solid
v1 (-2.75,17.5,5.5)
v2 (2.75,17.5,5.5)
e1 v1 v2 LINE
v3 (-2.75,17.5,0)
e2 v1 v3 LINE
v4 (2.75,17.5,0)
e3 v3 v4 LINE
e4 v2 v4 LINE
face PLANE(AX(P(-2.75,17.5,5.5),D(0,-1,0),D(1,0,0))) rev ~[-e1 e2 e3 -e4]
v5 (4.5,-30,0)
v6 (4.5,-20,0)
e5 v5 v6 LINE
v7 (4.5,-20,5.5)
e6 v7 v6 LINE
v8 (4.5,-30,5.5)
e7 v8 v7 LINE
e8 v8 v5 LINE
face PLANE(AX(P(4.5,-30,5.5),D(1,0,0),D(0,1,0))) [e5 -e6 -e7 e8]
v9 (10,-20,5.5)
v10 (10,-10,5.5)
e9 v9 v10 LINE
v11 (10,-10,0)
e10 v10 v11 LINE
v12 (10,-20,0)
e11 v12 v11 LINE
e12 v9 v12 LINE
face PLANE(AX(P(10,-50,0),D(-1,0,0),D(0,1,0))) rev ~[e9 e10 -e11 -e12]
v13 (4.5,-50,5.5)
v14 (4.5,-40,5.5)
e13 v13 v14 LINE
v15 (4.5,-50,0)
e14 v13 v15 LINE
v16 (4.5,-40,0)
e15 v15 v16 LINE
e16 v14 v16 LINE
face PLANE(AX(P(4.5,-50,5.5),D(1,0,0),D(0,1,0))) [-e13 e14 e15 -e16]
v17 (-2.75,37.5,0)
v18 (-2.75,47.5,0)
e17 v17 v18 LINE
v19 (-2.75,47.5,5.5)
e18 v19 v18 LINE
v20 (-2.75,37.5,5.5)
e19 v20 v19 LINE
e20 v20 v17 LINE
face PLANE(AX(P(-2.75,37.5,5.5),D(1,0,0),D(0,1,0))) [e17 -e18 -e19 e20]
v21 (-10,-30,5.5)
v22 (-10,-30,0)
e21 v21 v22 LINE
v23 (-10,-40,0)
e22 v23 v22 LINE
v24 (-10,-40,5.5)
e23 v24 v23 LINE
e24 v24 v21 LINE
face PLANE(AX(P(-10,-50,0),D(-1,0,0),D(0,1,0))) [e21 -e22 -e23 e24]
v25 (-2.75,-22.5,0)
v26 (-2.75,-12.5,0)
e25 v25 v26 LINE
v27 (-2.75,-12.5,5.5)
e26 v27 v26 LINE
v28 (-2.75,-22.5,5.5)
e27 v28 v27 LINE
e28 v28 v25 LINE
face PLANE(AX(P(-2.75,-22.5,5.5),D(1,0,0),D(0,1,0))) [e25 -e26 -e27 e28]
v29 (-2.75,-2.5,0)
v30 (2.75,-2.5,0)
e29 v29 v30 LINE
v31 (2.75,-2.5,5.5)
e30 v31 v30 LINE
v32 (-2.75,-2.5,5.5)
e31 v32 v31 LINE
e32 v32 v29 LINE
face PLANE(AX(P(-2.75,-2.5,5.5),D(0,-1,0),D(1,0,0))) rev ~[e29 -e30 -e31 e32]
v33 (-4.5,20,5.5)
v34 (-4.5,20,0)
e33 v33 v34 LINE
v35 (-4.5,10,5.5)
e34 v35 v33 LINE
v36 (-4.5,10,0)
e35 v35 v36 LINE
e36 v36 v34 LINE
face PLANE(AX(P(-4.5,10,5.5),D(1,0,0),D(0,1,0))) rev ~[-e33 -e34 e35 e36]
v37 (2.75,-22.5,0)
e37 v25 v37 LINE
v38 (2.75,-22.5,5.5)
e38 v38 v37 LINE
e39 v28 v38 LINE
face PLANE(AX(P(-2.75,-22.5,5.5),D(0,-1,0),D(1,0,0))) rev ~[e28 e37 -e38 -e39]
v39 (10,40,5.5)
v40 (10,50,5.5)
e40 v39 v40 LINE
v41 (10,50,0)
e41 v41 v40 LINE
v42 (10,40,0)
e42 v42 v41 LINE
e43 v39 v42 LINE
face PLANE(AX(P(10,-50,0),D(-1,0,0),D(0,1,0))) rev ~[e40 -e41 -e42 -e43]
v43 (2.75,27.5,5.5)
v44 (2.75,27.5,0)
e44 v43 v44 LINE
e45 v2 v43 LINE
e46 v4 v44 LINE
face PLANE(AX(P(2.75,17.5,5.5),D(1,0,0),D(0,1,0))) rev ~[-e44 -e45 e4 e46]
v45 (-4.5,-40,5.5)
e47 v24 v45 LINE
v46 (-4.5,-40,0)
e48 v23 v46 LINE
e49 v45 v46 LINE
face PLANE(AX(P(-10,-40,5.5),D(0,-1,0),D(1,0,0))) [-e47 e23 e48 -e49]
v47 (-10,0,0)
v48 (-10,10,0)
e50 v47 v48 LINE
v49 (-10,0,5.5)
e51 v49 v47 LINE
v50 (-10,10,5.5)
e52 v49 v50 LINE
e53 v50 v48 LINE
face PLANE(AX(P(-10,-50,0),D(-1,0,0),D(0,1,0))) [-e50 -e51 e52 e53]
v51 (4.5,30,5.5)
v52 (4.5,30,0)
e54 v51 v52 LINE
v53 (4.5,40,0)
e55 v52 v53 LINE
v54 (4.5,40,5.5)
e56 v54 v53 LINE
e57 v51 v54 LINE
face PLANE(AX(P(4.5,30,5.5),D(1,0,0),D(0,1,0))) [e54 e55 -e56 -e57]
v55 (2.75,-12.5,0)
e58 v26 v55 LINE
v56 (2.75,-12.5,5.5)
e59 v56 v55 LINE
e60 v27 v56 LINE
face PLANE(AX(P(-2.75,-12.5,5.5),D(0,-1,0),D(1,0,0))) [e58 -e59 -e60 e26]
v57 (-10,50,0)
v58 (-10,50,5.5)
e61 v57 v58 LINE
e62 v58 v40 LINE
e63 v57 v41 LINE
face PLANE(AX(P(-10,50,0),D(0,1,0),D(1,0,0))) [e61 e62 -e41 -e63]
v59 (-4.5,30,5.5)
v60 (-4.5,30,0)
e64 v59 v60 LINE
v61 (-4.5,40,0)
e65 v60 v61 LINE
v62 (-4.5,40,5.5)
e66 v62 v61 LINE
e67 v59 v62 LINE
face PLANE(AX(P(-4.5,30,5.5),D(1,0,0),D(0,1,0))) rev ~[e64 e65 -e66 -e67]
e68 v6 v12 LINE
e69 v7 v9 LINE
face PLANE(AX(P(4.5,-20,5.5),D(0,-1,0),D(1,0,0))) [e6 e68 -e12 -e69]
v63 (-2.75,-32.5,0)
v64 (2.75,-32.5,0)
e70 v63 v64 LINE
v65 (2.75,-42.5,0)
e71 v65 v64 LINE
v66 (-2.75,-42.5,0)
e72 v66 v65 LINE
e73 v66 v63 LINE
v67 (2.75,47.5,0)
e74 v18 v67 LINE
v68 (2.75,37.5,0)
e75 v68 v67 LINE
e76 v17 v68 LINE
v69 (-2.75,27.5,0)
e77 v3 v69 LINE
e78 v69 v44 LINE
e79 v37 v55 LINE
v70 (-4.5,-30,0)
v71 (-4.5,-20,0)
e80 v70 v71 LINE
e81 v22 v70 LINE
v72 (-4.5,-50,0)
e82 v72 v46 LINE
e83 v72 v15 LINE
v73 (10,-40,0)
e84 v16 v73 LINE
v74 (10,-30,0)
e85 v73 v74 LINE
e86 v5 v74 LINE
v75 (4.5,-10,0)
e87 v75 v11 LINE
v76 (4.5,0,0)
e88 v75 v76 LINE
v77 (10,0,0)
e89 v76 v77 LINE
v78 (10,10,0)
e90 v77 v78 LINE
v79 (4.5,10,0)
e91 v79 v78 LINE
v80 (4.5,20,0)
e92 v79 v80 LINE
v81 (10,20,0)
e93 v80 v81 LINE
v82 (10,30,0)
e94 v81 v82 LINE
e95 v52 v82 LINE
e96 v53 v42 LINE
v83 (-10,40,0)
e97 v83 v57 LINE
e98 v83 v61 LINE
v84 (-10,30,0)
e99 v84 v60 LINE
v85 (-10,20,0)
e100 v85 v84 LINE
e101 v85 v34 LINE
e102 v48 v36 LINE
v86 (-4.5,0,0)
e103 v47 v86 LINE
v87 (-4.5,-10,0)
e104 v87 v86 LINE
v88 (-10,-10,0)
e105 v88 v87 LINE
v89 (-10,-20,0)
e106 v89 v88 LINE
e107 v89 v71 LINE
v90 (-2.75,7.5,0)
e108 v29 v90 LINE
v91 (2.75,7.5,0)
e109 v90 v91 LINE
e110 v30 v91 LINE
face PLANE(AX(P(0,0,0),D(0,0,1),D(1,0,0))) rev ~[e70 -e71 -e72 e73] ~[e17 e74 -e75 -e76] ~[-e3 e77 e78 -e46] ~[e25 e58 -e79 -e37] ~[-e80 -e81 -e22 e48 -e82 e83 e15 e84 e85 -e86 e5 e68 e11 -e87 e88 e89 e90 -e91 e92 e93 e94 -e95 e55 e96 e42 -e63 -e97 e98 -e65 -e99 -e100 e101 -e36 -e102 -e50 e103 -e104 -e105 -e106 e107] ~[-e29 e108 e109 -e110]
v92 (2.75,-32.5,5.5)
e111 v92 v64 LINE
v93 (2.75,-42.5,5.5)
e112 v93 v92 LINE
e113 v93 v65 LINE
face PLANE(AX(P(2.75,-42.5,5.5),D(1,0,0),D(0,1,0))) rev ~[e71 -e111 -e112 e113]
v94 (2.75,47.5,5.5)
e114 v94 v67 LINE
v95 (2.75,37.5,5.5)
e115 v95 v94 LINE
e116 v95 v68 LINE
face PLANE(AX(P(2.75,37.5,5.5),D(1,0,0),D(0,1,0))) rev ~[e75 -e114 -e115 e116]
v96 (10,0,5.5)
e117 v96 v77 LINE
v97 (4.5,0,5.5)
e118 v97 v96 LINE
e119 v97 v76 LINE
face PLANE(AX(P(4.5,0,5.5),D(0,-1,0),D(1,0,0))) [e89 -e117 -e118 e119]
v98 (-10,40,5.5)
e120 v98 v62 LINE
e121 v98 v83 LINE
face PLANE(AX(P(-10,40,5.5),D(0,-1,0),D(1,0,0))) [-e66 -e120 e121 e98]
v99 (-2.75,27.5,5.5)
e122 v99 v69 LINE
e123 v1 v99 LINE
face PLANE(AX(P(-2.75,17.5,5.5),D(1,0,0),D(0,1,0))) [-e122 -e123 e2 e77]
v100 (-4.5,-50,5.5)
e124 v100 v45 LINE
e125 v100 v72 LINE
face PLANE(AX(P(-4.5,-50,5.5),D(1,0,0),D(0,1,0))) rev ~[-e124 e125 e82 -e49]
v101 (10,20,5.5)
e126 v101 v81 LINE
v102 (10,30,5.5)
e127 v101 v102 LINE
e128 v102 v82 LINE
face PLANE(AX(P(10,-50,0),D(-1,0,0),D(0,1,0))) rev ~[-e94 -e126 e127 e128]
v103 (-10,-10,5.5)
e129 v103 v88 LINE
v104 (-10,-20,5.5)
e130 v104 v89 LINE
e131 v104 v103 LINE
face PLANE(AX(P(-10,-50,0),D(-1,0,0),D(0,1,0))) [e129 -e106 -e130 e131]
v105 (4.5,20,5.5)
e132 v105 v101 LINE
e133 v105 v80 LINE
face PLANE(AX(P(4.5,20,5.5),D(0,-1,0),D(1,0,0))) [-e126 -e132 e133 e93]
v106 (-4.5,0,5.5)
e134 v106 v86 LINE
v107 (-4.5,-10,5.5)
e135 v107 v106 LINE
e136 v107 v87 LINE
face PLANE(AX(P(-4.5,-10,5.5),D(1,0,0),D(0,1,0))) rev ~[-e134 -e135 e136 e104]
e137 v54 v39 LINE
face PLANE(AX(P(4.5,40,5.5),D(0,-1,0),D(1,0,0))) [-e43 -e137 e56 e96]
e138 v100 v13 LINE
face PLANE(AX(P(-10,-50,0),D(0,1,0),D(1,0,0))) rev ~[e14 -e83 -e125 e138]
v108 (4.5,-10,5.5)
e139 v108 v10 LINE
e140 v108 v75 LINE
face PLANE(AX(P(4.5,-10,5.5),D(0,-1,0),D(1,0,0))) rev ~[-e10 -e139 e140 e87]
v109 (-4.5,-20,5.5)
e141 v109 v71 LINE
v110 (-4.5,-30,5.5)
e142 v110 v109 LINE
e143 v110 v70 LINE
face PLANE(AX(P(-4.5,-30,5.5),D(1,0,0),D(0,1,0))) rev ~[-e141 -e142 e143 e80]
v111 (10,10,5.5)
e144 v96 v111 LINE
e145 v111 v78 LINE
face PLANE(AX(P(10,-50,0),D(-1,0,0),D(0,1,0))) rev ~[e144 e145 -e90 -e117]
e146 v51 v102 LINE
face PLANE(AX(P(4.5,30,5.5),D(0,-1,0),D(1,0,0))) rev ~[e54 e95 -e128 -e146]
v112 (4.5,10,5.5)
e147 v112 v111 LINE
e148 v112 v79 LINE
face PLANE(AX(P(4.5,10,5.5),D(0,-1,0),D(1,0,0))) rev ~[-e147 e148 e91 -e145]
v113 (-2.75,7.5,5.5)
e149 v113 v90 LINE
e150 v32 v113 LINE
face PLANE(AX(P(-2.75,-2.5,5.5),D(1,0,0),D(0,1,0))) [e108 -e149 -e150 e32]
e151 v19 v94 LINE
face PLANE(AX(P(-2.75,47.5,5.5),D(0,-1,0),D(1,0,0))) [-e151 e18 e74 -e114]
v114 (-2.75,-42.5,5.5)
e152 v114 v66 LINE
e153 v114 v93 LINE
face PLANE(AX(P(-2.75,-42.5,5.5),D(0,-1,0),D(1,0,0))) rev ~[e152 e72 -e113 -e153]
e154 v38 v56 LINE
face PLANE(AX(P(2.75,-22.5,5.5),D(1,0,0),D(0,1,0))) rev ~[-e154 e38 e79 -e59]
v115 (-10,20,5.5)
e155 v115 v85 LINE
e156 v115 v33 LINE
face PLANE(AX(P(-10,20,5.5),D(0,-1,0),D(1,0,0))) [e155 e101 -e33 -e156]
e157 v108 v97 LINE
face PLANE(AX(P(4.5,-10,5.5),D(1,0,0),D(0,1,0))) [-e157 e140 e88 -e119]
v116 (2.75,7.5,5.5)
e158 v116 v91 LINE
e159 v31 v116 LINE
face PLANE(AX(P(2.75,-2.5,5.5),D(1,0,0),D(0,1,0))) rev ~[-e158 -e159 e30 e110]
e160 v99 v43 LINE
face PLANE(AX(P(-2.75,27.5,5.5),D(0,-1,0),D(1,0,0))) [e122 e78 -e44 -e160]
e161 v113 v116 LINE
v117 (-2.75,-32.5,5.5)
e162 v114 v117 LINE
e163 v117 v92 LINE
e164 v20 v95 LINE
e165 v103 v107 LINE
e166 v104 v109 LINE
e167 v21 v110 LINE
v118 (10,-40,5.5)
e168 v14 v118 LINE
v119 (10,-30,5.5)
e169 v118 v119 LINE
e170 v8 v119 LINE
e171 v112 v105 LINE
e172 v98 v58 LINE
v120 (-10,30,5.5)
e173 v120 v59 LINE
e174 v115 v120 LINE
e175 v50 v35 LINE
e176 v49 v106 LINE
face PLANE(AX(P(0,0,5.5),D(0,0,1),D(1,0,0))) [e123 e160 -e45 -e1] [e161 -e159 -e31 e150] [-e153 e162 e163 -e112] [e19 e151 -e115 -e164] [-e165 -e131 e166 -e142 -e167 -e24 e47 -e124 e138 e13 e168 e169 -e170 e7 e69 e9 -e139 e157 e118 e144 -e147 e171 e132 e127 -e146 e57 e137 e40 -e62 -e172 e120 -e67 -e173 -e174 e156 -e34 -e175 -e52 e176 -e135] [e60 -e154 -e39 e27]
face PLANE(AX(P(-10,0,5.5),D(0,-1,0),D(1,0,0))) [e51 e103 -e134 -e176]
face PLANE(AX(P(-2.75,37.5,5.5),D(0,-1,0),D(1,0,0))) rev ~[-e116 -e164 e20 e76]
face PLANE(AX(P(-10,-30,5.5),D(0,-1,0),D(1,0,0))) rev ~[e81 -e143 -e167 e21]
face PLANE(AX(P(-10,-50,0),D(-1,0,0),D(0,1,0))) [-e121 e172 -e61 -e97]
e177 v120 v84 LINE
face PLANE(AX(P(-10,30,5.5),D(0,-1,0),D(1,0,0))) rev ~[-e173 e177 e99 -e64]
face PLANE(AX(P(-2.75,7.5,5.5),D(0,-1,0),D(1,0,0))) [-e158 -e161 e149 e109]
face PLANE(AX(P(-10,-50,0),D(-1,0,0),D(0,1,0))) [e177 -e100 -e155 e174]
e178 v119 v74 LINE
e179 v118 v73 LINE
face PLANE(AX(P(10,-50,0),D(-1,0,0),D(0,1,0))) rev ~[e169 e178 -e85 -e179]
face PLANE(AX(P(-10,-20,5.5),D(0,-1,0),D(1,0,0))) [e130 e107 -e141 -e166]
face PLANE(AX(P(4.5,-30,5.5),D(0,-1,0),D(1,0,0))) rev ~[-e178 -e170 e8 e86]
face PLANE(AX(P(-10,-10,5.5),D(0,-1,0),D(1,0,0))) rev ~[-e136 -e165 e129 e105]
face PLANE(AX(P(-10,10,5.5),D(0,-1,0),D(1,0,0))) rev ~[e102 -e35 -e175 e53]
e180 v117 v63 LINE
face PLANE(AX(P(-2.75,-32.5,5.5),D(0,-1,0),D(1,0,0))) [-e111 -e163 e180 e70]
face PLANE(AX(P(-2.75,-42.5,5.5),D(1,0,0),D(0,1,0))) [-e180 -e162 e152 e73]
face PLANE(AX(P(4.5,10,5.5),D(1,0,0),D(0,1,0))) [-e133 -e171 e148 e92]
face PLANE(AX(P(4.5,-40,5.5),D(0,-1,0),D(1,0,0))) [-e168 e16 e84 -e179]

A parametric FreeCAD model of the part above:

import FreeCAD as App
import Part
import Sketcher
from FreeCAD import Vector


def add_polygon(sketch, points):
    """Adds a closed chain of lines whose ends are joined by coincident constraints."""
    first, n = sketch.GeometryCount, len(points)
    for a, b in zip(points, points[1:] + points[:1]):
        sketch.addGeometry(Part.LineSegment(App.Vector(*a, 0), App.Vector(*b, 0)), False)
    for i in range(n):
        sketch.addConstraint(Sketcher.Constraint("Coincident", first + i, 2, first + (i + 1) % n, 1))

doc = App.newDocument("Part")
body = doc.addObject("PartDesign::Body", "Body")

# Sketch on XY plane
sketch1 = doc.addObject("Sketcher::SketchObject", "Sketch")
body.addObject(sketch1)
sketch1.AttachmentSupport = (doc.XY_Plane, [""])
sketch1.MapMode = "FlatFace"
add_polygon(sketch1, [(-10, 50), (-10, -50), (10, -50), (10, 50)])  # lines 0-3
sketch1.addConstraint([
    Sketcher.Constraint("Vertical", 0),
    Sketcher.Constraint("Horizontal", 1),
    Sketcher.Constraint("Vertical", 2),
    Sketcher.Constraint("Horizontal", 3),
    Sketcher.Constraint("Symmetric", 0, 2, 2, 2, -1, 1),
    Sketcher.Constraint("DistanceX", 1, 1, 1, 2, 20.0),
    Sketcher.Constraint("DistanceY", 0, 2, 0, 1, 100.0),
])
pad1 = doc.addObject("PartDesign::Pad", "Pad")
body.addObject(pad1)
pad1.Profile = sketch1
pad1.Length = 5.5

# Sketch on XY plane
sketch2 = doc.addObject("Sketcher::SketchObject", "Sketch001")
body.addObject(sketch2)
sketch2.AttachmentSupport = (doc.XY_Plane, [""])
sketch2.MapMode = "FlatFace"
sketch2.AttachmentOffset = App.Placement(Vector(0, 0, 5.5), App.Rotation())
add_polygon(sketch2, [(-10, 40), (-10, 30), (-4.5, 30), (-4.5, 40)])  # lines 0-3
add_polygon(sketch2, [(-10, 20), (-10, 10), (-4.5, 10), (-4.5, 20)])  # lines 4-7
add_polygon(sketch2, [(-10, 0), (-10, -10), (-4.5, -10), (-4.5, 0)])  # lines 8-11
add_polygon(sketch2, [(-10, -20), (-10, -30), (-4.5, -30), (-4.5, -20)])  # lines 12-15
add_polygon(sketch2, [(4.5, -20), (4.5, -30), (10, -30), (10, -20)])  # lines 16-19
add_polygon(sketch2, [(4.5, 0), (4.5, -10), (10, -10), (10, 0)])  # lines 20-23
add_polygon(sketch2, [(4.5, 20), (4.5, 10), (10, 10), (10, 20)])  # lines 24-27
add_polygon(sketch2, [(4.5, 40), (4.5, 30), (10, 30), (10, 40)])  # lines 28-31
add_polygon(sketch2, [(-10, -40), (-10, -50), (-4.5, -50), (-4.5, -40)])  # lines 32-35
add_polygon(sketch2, [(4.5, -40), (4.5, -50), (10, -50), (10, -40)])  # lines 36-39
sketch2.addConstraint([
    Sketcher.Constraint("Vertical", 0),
    Sketcher.Constraint("Horizontal", 1),
    Sketcher.Constraint("Vertical", 2),
    Sketcher.Constraint("Horizontal", 3),
    Sketcher.Constraint("Vertical", 4),
    Sketcher.Constraint("Horizontal", 5),
    Sketcher.Constraint("Vertical", 6),
    Sketcher.Constraint("Horizontal", 7),
    Sketcher.Constraint("Vertical", 8),
    Sketcher.Constraint("Horizontal", 9),
    Sketcher.Constraint("Vertical", 10),
    Sketcher.Constraint("Horizontal", 11),
    Sketcher.Constraint("Vertical", 12),
    Sketcher.Constraint("Horizontal", 13),
    Sketcher.Constraint("Vertical", 14),
    Sketcher.Constraint("Horizontal", 15),
    Sketcher.Constraint("Vertical", 16),
    Sketcher.Constraint("Horizontal", 17),
    Sketcher.Constraint("Vertical", 18),
    Sketcher.Constraint("Horizontal", 19),
    Sketcher.Constraint("Vertical", 20),
    Sketcher.Constraint("Horizontal", 21),
    Sketcher.Constraint("Vertical", 22),
    Sketcher.Constraint("Horizontal", 23),
    Sketcher.Constraint("Vertical", 24),
    Sketcher.Constraint("Horizontal", 25),
    Sketcher.Constraint("Vertical", 26),
    Sketcher.Constraint("Horizontal", 27),
    Sketcher.Constraint("Vertical", 28),
    Sketcher.Constraint("Horizontal", 29),
    Sketcher.Constraint("Vertical", 30),
    Sketcher.Constraint("Horizontal", 31),
    Sketcher.Constraint("Vertical", 32),
    Sketcher.Constraint("Horizontal", 33),
    Sketcher.Constraint("Vertical", 34),
    Sketcher.Constraint("Horizontal", 35),
    Sketcher.Constraint("Vertical", 36),
    Sketcher.Constraint("Horizontal", 37),
    Sketcher.Constraint("Vertical", 38),
    Sketcher.Constraint("Horizontal", 39),
    Sketcher.Constraint("Symmetric", 1, 2, 16, 2, -1, 1),
    Sketcher.Constraint("Symmetric", 7, 2, 18, 2, -1, 1),
    Sketcher.Constraint("Symmetric", 5, 2, 20, 2, -1, 1),
    Sketcher.Constraint("Symmetric", 11, 2, 22, 2, -1, 1),
    Sketcher.Constraint("Symmetric", 9, 2, 24, 2, -1, 1),
    Sketcher.Constraint("Symmetric", 15, 2, 26, 2, -1, 1),
    Sketcher.Constraint("Symmetric", 13, 2, 28, 2, -1, 1),
    Sketcher.Constraint("Symmetric", 31, 2, 34, 2, -1, 1),
    Sketcher.Constraint("Symmetric", 3, 2, 38, 2, -1, 1),
    Sketcher.Constraint("Symmetric", 13, 2, 16, 2, -2),
    Sketcher.Constraint("Symmetric", 15, 2, 18, 2, -2),
    Sketcher.Constraint("Symmetric", 9, 2, 20, 2, -2),
    Sketcher.Constraint("Symmetric", 3, 2, 30, 2, -2),
    Sketcher.Constraint("Symmetric", 33, 2, 36, 2, -2),
    Sketcher.Constraint("PointOnObject", 10, 2, -1),
    Sketcher.Constraint("Vertical", 3, 2, 4, 2),
    Sketcher.Constraint("Vertical", 2, 2, 5, 2),
    Sketcher.Constraint("Vertical", 7, 2, 8, 2),
    Sketcher.Constraint("Vertical", 15, 2, 32, 2),
    Sketcher.Constraint("Equal", 2, 4),
    Sketcher.Constraint("Equal", 6, 8),
    Sketcher.Constraint("Equal", 10, 12),
    Sketcher.Constraint("Equal", 30, 32),
    Sketcher.Constraint("DistanceY", 0, 2, 0, 1, 10.0),
    Sketcher.Constraint("DistanceX", 1, 1, 1, 2, 5.5),
    Sketcher.Constraint("DistanceX", 0, 2, -1, 1, 10.0),
])
pocket1 = doc.addObject("PartDesign::Pocket", "Pocket")
body.addObject(pocket1)
pocket1.Profile = sketch2
pocket1.Type = "ThroughAll"

# Sketch on XY plane
sketch3 = doc.addObject("Sketcher::SketchObject", "Sketch002")
body.addObject(sketch3)
sketch3.AttachmentSupport = (doc.XY_Plane, [""])
sketch3.MapMode = "FlatFace"
sketch3.AttachmentOffset = App.Placement(Vector(0, 0, 5.5), App.Rotation())
add_polygon(sketch3, [(-2.75, -32.5), (-2.75, -42.5), (2.75, -42.5), (2.75, -32.5)])  # lines 0-3
add_polygon(sketch3, [(-2.75, -12.5), (-2.75, -22.5), (2.75, -22.5), (2.75, -12.5)])  # lines 4-7
add_polygon(sketch3, [(-2.75, 7.5), (-2.75, -2.5), (2.75, -2.5), (2.75, 7.5)])  # lines 8-11
add_polygon(sketch3, [(-2.75, 27.5), (-2.75, 17.5), (2.75, 17.5), (2.75, 27.5)])  # lines 12-15
add_polygon(sketch3, [(-2.75, 47.5), (-2.75, 37.5), (2.75, 37.5), (2.75, 47.5)])  # lines 16-19
sketch3.addConstraint([
    Sketcher.Constraint("Vertical", 0),
    Sketcher.Constraint("Horizontal", 1),
    Sketcher.Constraint("Vertical", 2),
    Sketcher.Constraint("Horizontal", 3),
    Sketcher.Constraint("Vertical", 4),
    Sketcher.Constraint("Horizontal", 5),
    Sketcher.Constraint("Vertical", 6),
    Sketcher.Constraint("Horizontal", 7),
    Sketcher.Constraint("Vertical", 8),
    Sketcher.Constraint("Horizontal", 9),
    Sketcher.Constraint("Vertical", 10),
    Sketcher.Constraint("Horizontal", 11),
    Sketcher.Constraint("Vertical", 12),
    Sketcher.Constraint("Horizontal", 13),
    Sketcher.Constraint("Vertical", 14),
    Sketcher.Constraint("Horizontal", 15),
    Sketcher.Constraint("Vertical", 16),
    Sketcher.Constraint("Horizontal", 17),
    Sketcher.Constraint("Vertical", 18),
    Sketcher.Constraint("Horizontal", 19),
    Sketcher.Constraint("Vertical", 3, 2, 4, 2),
    Sketcher.Constraint("Vertical", 2, 2, 5, 2),
    Sketcher.Constraint("Vertical", 7, 2, 8, 2),
    Sketcher.Constraint("Vertical", 6, 2, 9, 2),
    Sketcher.Constraint("Vertical", 11, 2, 12, 2),
    Sketcher.Constraint("Vertical", 10, 2, 13, 2),
    Sketcher.Constraint("Vertical", 15, 2, 16, 2),
    Sketcher.Constraint("Vertical", 14, 2, 17, 2),
    Sketcher.Constraint("Equal", 2, 4),
    Sketcher.Constraint("Equal", 6, 8),
    Sketcher.Constraint("Equal", 10, 12),
    Sketcher.Constraint("Equal", 14, 16),
    Sketcher.Constraint("DistanceY", 0, 2, 0, 1, 10.0),
    Sketcher.Constraint("DistanceX", 1, 1, 1, 2, 5.5),
    Sketcher.Constraint("DistanceY", 3, 2, 4, 2, 10.0),
    Sketcher.Constraint("DistanceY", 7, 2, 8, 2, 10.0),
    Sketcher.Constraint("DistanceY", 11, 2, 12, 2, 10.0),
    Sketcher.Constraint("DistanceY", 15, 2, 16, 2, 10.0),
    Sketcher.Constraint("DistanceY", 0, 2, -1, 1, 42.5),
    Sketcher.Constraint("DistanceX", 0, 2, -1, 1, 2.75),
])
pocket2 = doc.addObject("PartDesign::Pocket", "Pocket001")
body.addObject(pocket2)
pocket2.Profile = sketch3
pocket2.Type = "ThroughAll"

doc.recompute()
